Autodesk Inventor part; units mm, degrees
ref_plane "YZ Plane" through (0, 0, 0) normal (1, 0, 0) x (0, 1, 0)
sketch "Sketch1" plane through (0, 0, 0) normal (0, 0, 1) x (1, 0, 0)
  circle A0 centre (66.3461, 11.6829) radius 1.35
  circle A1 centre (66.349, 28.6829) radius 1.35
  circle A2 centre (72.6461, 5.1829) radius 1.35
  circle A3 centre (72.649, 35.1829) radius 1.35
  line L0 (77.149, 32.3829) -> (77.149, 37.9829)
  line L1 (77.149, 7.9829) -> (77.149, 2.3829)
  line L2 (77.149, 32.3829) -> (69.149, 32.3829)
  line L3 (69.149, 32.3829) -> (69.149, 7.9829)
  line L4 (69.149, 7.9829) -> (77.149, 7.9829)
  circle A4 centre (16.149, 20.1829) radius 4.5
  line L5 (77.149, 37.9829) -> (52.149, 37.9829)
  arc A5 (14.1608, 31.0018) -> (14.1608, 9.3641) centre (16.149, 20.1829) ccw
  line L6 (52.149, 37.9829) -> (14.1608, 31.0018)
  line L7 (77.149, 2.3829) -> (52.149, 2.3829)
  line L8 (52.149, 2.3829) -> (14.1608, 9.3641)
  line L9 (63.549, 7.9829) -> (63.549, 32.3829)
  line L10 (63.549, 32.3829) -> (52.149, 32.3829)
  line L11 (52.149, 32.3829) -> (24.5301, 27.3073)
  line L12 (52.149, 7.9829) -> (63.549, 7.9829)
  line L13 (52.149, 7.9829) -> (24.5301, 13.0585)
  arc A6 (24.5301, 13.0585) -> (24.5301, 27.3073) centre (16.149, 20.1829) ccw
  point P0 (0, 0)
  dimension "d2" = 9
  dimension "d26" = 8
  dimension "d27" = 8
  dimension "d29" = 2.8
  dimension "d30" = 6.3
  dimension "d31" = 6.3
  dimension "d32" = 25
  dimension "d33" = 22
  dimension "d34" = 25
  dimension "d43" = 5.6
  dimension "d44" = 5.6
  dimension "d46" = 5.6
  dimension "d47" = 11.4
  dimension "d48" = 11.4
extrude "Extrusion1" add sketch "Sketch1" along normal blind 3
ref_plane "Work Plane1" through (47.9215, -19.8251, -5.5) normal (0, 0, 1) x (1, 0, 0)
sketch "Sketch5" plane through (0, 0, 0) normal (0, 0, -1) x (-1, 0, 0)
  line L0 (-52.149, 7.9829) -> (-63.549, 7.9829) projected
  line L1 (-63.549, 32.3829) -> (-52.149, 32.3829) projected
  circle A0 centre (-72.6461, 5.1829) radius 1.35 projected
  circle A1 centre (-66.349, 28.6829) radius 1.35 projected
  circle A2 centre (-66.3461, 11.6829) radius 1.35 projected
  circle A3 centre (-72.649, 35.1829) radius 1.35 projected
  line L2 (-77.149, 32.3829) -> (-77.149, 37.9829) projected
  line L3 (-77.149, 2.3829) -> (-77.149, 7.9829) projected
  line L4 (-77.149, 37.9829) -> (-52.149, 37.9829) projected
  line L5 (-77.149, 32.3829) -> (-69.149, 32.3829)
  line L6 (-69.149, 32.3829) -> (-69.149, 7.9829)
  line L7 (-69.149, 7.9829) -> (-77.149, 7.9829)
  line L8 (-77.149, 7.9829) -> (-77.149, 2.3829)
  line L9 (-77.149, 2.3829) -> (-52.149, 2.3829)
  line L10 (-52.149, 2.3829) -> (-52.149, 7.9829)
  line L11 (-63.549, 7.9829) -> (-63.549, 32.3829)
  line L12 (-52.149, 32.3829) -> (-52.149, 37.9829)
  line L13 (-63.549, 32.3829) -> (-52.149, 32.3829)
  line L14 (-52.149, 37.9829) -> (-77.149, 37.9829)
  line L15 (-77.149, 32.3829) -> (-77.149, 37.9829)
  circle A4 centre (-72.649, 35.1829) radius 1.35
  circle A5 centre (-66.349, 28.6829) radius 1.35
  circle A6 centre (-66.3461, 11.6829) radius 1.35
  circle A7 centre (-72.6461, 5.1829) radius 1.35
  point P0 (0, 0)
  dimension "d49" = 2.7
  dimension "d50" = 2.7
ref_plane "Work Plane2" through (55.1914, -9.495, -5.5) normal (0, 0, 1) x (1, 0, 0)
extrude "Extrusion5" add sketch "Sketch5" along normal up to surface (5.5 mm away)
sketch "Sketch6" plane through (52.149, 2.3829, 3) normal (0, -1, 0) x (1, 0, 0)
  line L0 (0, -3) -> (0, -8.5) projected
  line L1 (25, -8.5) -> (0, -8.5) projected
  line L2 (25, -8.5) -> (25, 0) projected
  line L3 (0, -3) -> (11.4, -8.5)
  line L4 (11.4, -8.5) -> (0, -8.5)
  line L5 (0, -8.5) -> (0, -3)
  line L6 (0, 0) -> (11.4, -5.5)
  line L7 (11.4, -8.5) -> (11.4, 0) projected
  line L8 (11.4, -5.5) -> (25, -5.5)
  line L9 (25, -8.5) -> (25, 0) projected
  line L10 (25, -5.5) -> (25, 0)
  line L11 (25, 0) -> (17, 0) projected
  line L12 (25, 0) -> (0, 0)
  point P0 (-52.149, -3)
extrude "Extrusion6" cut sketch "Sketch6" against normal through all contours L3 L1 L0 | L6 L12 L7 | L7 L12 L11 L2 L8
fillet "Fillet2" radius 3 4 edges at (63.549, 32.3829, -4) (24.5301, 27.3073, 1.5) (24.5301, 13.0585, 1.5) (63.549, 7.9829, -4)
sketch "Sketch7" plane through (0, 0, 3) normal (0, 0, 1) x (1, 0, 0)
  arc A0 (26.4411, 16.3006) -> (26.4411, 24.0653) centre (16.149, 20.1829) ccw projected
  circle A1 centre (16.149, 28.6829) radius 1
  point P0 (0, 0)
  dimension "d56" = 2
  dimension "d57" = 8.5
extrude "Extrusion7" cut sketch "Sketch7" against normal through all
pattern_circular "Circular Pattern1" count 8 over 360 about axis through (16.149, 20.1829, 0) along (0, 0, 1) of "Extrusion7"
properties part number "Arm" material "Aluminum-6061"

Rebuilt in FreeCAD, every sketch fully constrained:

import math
import FreeCAD as App
import Part
import Sketcher
from FreeCAD import Vector
Q = App.Units.Quantity


def edges_at(feature, points):
    """Names of the edges that pass closest to the given points."""
    edges = feature.Shape.Edges
    near = lambda p: min(range(len(edges)), key=lambda i: edges[i].distToShape(Part.Vertex(*p))[0])
    return sorted({f"Edge{near(p) + 1}" for p in points})


def add_polygon(sketch, points):
    """Adds a closed chain of lines whose ends are joined by coincident constraints."""
    first, n = sketch.GeometryCount, len(points)
    for a, b in zip(points, points[1:] + points[:1]):
        sketch.addGeometry(Part.LineSegment(App.Vector(*a, 0), App.Vector(*b, 0)), False)
    for i in range(n):
        sketch.addConstraint(Sketcher.Constraint("Coincident", first + i, 2, first + (i + 1) % n, 1))

doc = App.newDocument("Part")
params = doc.addObject("Spreadsheet::Sheet", "Params")
for row, (alias, value) in enumerate([
    ("sketch1_diameter", "9 mm"),
    ("sketch1_radius", "11 mm"),
    ("sketch1_width", "8 mm"),
    ("sketch1_width2", "25 mm"),
    ("sketch1_width3", "11.4 mm"),
    ("pad1_length", "3 mm"),
    ("sketch2_diameter", "2.7 mm"),
    ("sketch2_width", "25 mm"),
    ("sketch2_width2", "8 mm"),
    ("sketch2_width3", "11.4 mm"),
    ("sketch2_height", "5.6 mm"),
    ("pad2_length", "5.5 mm"),
    ("sketch3_width", "25 mm"),
    ("sketch3_width2", "11.4 mm"),
    ("sketch3_height", "5.5 mm"),
    ("pocket1_length", "36.6 mm"),
    ("fillet_radius", "3 mm"),
    ("sketch4_diameter", "2 mm"),
], start=1):
    params.set(f"A{row}", alias)
    params.set(f"B{row}", "=" + value)
    params.setAlias(f"B{row}", alias)

body = doc.addObject("PartDesign::Body", "Body")

# Sketch on XY plane
sketch1 = body.newObject("Sketcher::SketchObject", "Sketch")
sketch1.AttachmentSupport = (doc.getObject("XY_Plane"), [""])
sketch1.MapMode = "FlatFace"
sketch1.addGeometry([
    Part.LineSegment(Vector(69.149, 32.3829, 0), Vector(77.149, 32.3829, 0)),  # 0
    Part.LineSegment(Vector(77.149, 32.3829, 0), Vector(77.149, 37.9829, 0)),  # 1
    Part.LineSegment(Vector(77.149, 37.9829, 0), Vector(52.149, 37.9829, 0)),  # 2
    Part.LineSegment(Vector(52.149, 37.9829, 0), Vector(14.1608, 31.0018, 0)),  # 3
    Part.ArcOfCircle(Part.Circle(Vector(16.149, 20.1829, 0), Vector(0, 0, 1), 10.999996), math.radians(100.413117), math.radians(259.586789)),  # 4
    Part.LineSegment(Vector(14.1608, 9.3641, 0), Vector(52.149, 2.3829, 0)),  # 5
    Part.LineSegment(Vector(52.149, 2.3829, 0), Vector(77.149, 2.3829, 0)),  # 6
    Part.LineSegment(Vector(77.149, 2.3829, 0), Vector(77.149, 7.9829, 0)),  # 7
    Part.LineSegment(Vector(77.149, 7.9829, 0), Vector(69.149, 7.9829, 0)),  # 8
    Part.LineSegment(Vector(69.149, 7.9829, 0), Vector(69.149, 32.3829, 0)),  # 9
    Part.Circle(Vector(72.6461, 5.1829, 0), Vector(0, 0, 1), 1.35),  # 10
    Part.Circle(Vector(66.3461, 11.6829, 0), Vector(0, 0, 1), 1.35),  # 11
    Part.Circle(Vector(16.149, 20.1829, 0), Vector(0, 0, 1), 4.5),  # 12
    Part.LineSegment(Vector(63.549, 32.3829, 0), Vector(63.549, 7.9829, 0)),  # 13
    Part.LineSegment(Vector(63.549, 7.9829, 0), Vector(52.149, 7.9829, 0)),  # 14
    Part.LineSegment(Vector(52.149, 7.9829, 0), Vector(24.5301, 13.0585, 0)),  # 15
    Part.ArcOfCircle(Part.Circle(Vector(16.149, 20.1829, 0), Vector(0, 0, 1), 10.999996), math.radians(-40.366382), math.radians(40.366382)),  # 16
    Part.LineSegment(Vector(24.5301, 27.3073, 0), Vector(52.149, 32.3829, 0)),  # 17
    Part.LineSegment(Vector(52.149, 32.3829, 0), Vector(63.549, 32.3829, 0)),  # 18
    Part.Circle(Vector(66.349, 28.6829, 0), Vector(0, 0, 1), 1.35),  # 19
    Part.Circle(Vector(72.649, 35.1829, 0), Vector(0, 0, 1), 1.35),  # 20
], False)
sketch1.addConstraint([
    Sketcher.Constraint("Coincident", 0, 2, 1, 1),
    Sketcher.Constraint("Coincident", 1, 2, 2, 1),
    Sketcher.Constraint("Coincident", 2, 2, 3, 1),
    Sketcher.Constraint("Tangent", 3, 2, 4, 1),
    Sketcher.Constraint("Tangent", 4, 2, 5, 1),
    Sketcher.Constraint("Coincident", 5, 2, 6, 1),
    Sketcher.Constraint("Coincident", 6, 2, 7, 1),
    Sketcher.Constraint("Coincident", 7, 2, 8, 1),
    Sketcher.Constraint("Coincident", 8, 2, 9, 1),
    Sketcher.Constraint("Coincident", 9, 2, 0, 1),
    Sketcher.Constraint("Coincident", 13, 2, 14, 1),
    Sketcher.Constraint("Coincident", 14, 2, 15, 1),
    Sketcher.Constraint("Coincident", 15, 2, 16, 1),
    Sketcher.Constraint("Coincident", 16, 2, 17, 1),
    Sketcher.Constraint("Coincident", 17, 2, 18, 1),
    Sketcher.Constraint("Coincident", 18, 2, 13, 1),
    Sketcher.Constraint("Horizontal", 0),
    Sketcher.Constraint("Vertical", 1),
    Sketcher.Constraint("Horizontal", 2),
    Sketcher.Constraint("Horizontal", 6),
    Sketcher.Constraint("Vertical", 7),
    Sketcher.Constraint("Horizontal", 8),
    Sketcher.Constraint("Vertical", 9),
    Sketcher.Constraint("Vertical", 13),
    Sketcher.Constraint("Horizontal", 14),
    Sketcher.Constraint("Horizontal", 18),
    Sketcher.Constraint("Coincident", 12, 3, 4, 3),
    Sketcher.Constraint("Coincident", 16, 3, 4, 3),
    Sketcher.Constraint("Equal", 10, 11),
    Sketcher.Constraint("Equal", 4, 16),
    Sketcher.Constraint("Equal", 11, 19),
    Sketcher.Constraint("Equal", 19, 20),
    Sketcher.Constraint("Parallel", 5, 15),
    Sketcher.Constraint("Parallel", 3, 17),
    Sketcher.Constraint("Horizontal", 8, 2, 13, 2),
    Sketcher.Constraint("Horizontal", 9, 2, 17, 2),
    Sketcher.Constraint("Vertical", 3, 2, 4, 2),
    Sketcher.Constraint("Vertical", 2, 2, 5, 2),
    Sketcher.Constraint("Vertical", 1, 2, 6, 2),
    Sketcher.Constraint("Vertical", 5, 2, 14, 2),
    Sketcher.Constraint("Vertical", 15, 2, 16, 2),
    Sketcher.Constraint("Vertical", 14, 2, 17, 2),
    Sketcher.Constraint("Diameter", 12, Q("9 mm")),
    Sketcher.Constraint("Radius", 4, Q("11 mm")),
    Sketcher.Constraint("DistanceX", 0, 1, 0, 2, Q("8 mm")),
    Sketcher.Constraint("DistanceX", 2, 2, 2, 1, Q("25 mm")),
    Sketcher.Constraint("DistanceX", 14, 2, 14, 1, Q("11.4 mm")),
    Sketcher.Constraint("DistanceY", 1, 1, 1, 2, Q("5.6 mm")),
    Sketcher.Constraint("Diameter", 10, Q("2.7 mm")),
    Sketcher.Constraint("DistanceX", 11, 3, 10, 3, Q("6.3 mm")),
    Sketcher.Constraint("DistanceX", 19, 3, 20, 3, Q("6.3 mm")),
    Sketcher.Constraint("DistanceY", 0, 2, 20, 3, Q("2.8 mm")),
    Sketcher.Constraint("DistanceY", 5, 2, 10, 3, Q("2.8 mm")),
    Sketcher.Constraint("DistanceX", 19, 3, 9, 2, Q("2.8 mm")),
    Sketcher.Constraint("DistanceY", 9, 1, 9, 2, Q("24.4 mm")),
    Sketcher.Constraint("DistanceY", 11, 3, 19, 3, Q("17 mm")),
    Sketcher.Constraint("DistanceX", 4, 3, 0, 2, Q("61 mm")),
    Sketcher.Constraint("DistanceY", 10, 3, 11, 3, Q("6.5 mm")),
    Sketcher.Constraint("DistanceX", -1, 1, 15, 2, Q("24.53 mm")),
    Sketcher.Constraint("DistanceY", -1, 1, 4, 3, Q("20.183 mm")),
    Sketcher.Constraint("DistanceX", -1, 1, 10, 3, Q("72.646 mm")),
])
sketch1.setExpression("Constraints[42]", "Params.sketch1_diameter")
sketch1.setExpression("Constraints[43]", "Params.sketch1_radius")
sketch1.setExpression("Constraints[44]", "Params.sketch1_width")
sketch1.setExpression("Constraints[45]", "Params.sketch1_width2")
sketch1.setExpression("Constraints[46]", "Params.sketch1_width3")
pad1 = body.newObject("PartDesign::Pad", "Pad")
pad1.Profile = sketch1
pad1.setExpression("Length", "Params.pad1_length")

# Sketch on XY plane
sketch2 = body.newObject("Sketcher::SketchObject", "Sketch001")
sketch2.AttachmentSupport = (doc.getObject("XY_Plane"), [""])
sketch2.MapMode = "FlatFace"
add_polygon(sketch2, [(52.149, 2.3829), (52.149, 7.9829), (63.549, 7.9829), (63.549, 32.3829), (52.149, 32.3829), (52.149, 37.9829), (77.149, 37.9829), (77.149, 32.3829), (69.149, 32.3829), (69.149, 7.9829), (77.149, 7.9829), (77.149, 2.3829)])  # lines 0-11
sketch2.addGeometry(Part.Circle(Vector(72.6461, 5.1829, 0), Vector(0, 0, 1), 1.35), False)  # 12
sketch2.addGeometry(Part.Circle(Vector(66.3461, 11.6829, 0), Vector(0, 0, 1), 1.35), False)  # 13
sketch2.addGeometry(Part.Circle(Vector(66.349, 28.6829, 0), Vector(0, 0, 1), 1.35), False)  # 14
sketch2.addGeometry(Part.Circle(Vector(72.649, 35.1829, 0), Vector(0, 0, 1), 1.35), False)  # 15
sketch2.addConstraint([
    Sketcher.Constraint("Vertical", 0),
    Sketcher.Constraint("Horizontal", 1),
    Sketcher.Constraint("Vertical", 2),
    Sketcher.Constraint("Horizontal", 3),
    Sketcher.Constraint("Vertical", 4),
    Sketcher.Constraint("Horizontal", 5),
    Sketcher.Constraint("Vertical", 6),
    Sketcher.Constraint("Horizontal", 7),
    Sketcher.Constraint("Vertical", 8),
    Sketcher.Constraint("Horizontal", 9),
    Sketcher.Constraint("Vertical", 10),
    Sketcher.Constraint("Horizontal", 11),
    Sketcher.Constraint("Equal", 12, 13),
    Sketcher.Constraint("Equal", 13, 14),
    Sketcher.Constraint("Equal", 14, 15),
    Sketcher.Constraint("Horizontal", 3, 2, 6, 2),
    Sketcher.Constraint("Horizontal", 1, 2, 8, 2),
    Sketcher.Constraint("Vertical", 0, 2, 3, 2),
    Sketcher.Constraint("Vertical", 6, 2, 9, 2),
    Sketcher.Constraint("Equal", 0, 4),
    Sketcher.Constraint("Diameter", 12, Q("2.7 mm")),
    Sketcher.Constraint("DistanceX", 5, 1, 5, 2, Q("25 mm")),
    Sketcher.Constraint("DistanceX", 7, 2, 7, 1, Q("8 mm")),
    Sketcher.Constraint("DistanceX", 1, 1, 1, 2, Q("11.4 mm")),
    Sketcher.Constraint("DistanceY", 0, 1, 0, 2, Q("5.6 mm")),
    Sketcher.Constraint("DistanceY", 2, 1, 2, 2, Q("24.4 mm")),
    Sketcher.Constraint("DistanceY", 13, 3, 14, 3, Q("17 mm")),
    Sketcher.Constraint("DistanceY", 12, 3, 15, 3, Q("30 mm")),
    Sketcher.Constraint("DistanceX", 13, 3, 12, 3, Q("6.3 mm")),
    Sketcher.Constraint("DistanceY", 12, 3, 13, 3, Q("6.5 mm")),
    Sketcher.Constraint("DistanceX", 14, 3, 15, 3, Q("6.3 mm")),
    Sketcher.Constraint("DistanceY", 0, 2, 13, 3, Q("3.7 mm")),
    Sketcher.Constraint("DistanceX", 0, 2, 14, 3, Q("14.2 mm")),
    Sketcher.Constraint("DistanceX", -1, 1, 12, 3, Q("72.646 mm")),
    Sketcher.Constraint("DistanceY", -1, 1, 12, 3, Q("5.183 mm")),
    Sketcher.Constraint("DistanceX", -1, 1, 14, 3, Q("66.349 mm")),
])
sketch2.setExpression("Constraints[32]", "Params.sketch2_diameter")
sketch2.setExpression("Constraints[33]", "Params.sketch2_width")
sketch2.setExpression("Constraints[34]", "Params.sketch2_width2")
sketch2.setExpression("Constraints[35]", "Params.sketch2_width3")
sketch2.setExpression("Constraints[36]", "Params.sketch2_height")
pad2 = body.newObject("PartDesign::Pad", "Pad001")
pad2.Profile = sketch2
pad2.setExpression("Length", "Params.pad2_length")
pad2.Reversed = True

# Sketch on XZ plane
sketch3 = body.newObject("Sketcher::SketchObject", "Sketch002")
sketch3.AttachmentSupport = (doc.getObject("XZ_Plane"), [""])
sketch3.MapMode = "FlatFace"
sketch3.AttachmentOffset = App.Placement(Vector(0, 0, -2.3829), App.Rotation())
add_polygon(sketch3, [(63.549, -5.5), (52.149, 0), (52.149, -5.5)])  # lines 0-2
add_polygon(sketch3, [(52.149, 3), (63.549, -2.5), (77.149, -2.5), (77.149, 3)])  # lines 3-6
sketch3.addConstraint([
    Sketcher.Constraint("Vertical", 1),
    Sketcher.Constraint("Horizontal", 2),
    Sketcher.Constraint("Horizontal", 4),
    Sketcher.Constraint("Vertical", 5),
    Sketcher.Constraint("Horizontal", 6),
    Sketcher.Constraint("PointOnObject", 0, 2, -1),
    Sketcher.Constraint("Parallel", 0, 3),
    Sketcher.Constraint("Vertical", 2, 2, 3, 2),
    Sketcher.Constraint("Vertical", 1, 2, 6, 2),
    Sketcher.Constraint("DistanceX", 6, 2, 6, 1, Q("25 mm")),
    Sketcher.Constraint("DistanceX", 2, 1, 2, 2, Q("11.4 mm")),
    Sketcher.Constraint("DistanceY", 1, 2, 1, 1, Q("5.5 mm")),
    Sketcher.Constraint("DistanceY", -1, 1, 5, 2, Q("3 mm")),
    Sketcher.Constraint("DistanceX", -1, 1, 0, 2, Q("52.149 mm")),
])
sketch3.setExpression("Constraints[16]", "Params.sketch3_width")
sketch3.setExpression("Constraints[17]", "Params.sketch3_width2")
sketch3.setExpression("Constraints[18]", "Params.sketch3_height")
pocket1 = body.newObject("PartDesign::Pocket", "Pocket")
pocket1.Profile = sketch3
pocket1.setExpression("Length", "Params.pocket1_length")
doc.recompute()

fillet = body.newObject("PartDesign::Fillet", "Fillet")
fillet.Base = (pocket1, edges_at(pocket1, [
    (63.549, 32.383, -4),
    (24.53, 27.307, 1.5),
    (24.53, 13.059, 1.5),
    (63.549, 7.983, -4),
]))
fillet.setExpression("Radius", "Params.fillet_radius")

# Sketch on XY plane
sketch4 = body.newObject("Sketcher::SketchObject", "Sketch003")
sketch4.AttachmentSupport = (doc.getObject("XY_Plane"), [""])
sketch4.MapMode = "FlatFace"
sketch4.AttachmentOffset = App.Placement(Vector(0, 0, 3), App.Rotation())
sketch4.addGeometry(Part.Circle(Vector(16.149, 28.6829, 0), Vector(0, 0, 1), 1), False)
sketch4.addConstraint([
    Sketcher.Constraint("Diameter", 0, Q("2 mm")),
    Sketcher.Constraint("DistanceX", -1, 1, 0, 3, Q("16.149 mm")),
    Sketcher.Constraint("DistanceY", -1, 1, 0, 3, Q("28.683 mm")),
])
sketch4.setExpression("Constraints[0]", "Params.sketch4_diameter")
pocket2 = body.newObject("PartDesign::Pocket", "Pocket001")
pocket2.Profile = sketch4
pocket2.Type = "ThroughAll"
doc.recompute()

datumline = body.newObject("PartDesign::Line", "DatumLine")
datumline.Placement = App.Placement(Vector(16.149, 20.1829, 0), App.Rotation(Vector(0, 0, 1), Vector(0, 0, 1)))
polarpattern = body.newObject("PartDesign::PolarPattern", "PolarPattern")
polarpattern.Originals = [pocket2]
polarpattern.Axis = (datumline, [""])
polarpattern.Angle = 360
polarpattern.Occurrences = 8
body.Tip = polarpattern

doc.recompute()
